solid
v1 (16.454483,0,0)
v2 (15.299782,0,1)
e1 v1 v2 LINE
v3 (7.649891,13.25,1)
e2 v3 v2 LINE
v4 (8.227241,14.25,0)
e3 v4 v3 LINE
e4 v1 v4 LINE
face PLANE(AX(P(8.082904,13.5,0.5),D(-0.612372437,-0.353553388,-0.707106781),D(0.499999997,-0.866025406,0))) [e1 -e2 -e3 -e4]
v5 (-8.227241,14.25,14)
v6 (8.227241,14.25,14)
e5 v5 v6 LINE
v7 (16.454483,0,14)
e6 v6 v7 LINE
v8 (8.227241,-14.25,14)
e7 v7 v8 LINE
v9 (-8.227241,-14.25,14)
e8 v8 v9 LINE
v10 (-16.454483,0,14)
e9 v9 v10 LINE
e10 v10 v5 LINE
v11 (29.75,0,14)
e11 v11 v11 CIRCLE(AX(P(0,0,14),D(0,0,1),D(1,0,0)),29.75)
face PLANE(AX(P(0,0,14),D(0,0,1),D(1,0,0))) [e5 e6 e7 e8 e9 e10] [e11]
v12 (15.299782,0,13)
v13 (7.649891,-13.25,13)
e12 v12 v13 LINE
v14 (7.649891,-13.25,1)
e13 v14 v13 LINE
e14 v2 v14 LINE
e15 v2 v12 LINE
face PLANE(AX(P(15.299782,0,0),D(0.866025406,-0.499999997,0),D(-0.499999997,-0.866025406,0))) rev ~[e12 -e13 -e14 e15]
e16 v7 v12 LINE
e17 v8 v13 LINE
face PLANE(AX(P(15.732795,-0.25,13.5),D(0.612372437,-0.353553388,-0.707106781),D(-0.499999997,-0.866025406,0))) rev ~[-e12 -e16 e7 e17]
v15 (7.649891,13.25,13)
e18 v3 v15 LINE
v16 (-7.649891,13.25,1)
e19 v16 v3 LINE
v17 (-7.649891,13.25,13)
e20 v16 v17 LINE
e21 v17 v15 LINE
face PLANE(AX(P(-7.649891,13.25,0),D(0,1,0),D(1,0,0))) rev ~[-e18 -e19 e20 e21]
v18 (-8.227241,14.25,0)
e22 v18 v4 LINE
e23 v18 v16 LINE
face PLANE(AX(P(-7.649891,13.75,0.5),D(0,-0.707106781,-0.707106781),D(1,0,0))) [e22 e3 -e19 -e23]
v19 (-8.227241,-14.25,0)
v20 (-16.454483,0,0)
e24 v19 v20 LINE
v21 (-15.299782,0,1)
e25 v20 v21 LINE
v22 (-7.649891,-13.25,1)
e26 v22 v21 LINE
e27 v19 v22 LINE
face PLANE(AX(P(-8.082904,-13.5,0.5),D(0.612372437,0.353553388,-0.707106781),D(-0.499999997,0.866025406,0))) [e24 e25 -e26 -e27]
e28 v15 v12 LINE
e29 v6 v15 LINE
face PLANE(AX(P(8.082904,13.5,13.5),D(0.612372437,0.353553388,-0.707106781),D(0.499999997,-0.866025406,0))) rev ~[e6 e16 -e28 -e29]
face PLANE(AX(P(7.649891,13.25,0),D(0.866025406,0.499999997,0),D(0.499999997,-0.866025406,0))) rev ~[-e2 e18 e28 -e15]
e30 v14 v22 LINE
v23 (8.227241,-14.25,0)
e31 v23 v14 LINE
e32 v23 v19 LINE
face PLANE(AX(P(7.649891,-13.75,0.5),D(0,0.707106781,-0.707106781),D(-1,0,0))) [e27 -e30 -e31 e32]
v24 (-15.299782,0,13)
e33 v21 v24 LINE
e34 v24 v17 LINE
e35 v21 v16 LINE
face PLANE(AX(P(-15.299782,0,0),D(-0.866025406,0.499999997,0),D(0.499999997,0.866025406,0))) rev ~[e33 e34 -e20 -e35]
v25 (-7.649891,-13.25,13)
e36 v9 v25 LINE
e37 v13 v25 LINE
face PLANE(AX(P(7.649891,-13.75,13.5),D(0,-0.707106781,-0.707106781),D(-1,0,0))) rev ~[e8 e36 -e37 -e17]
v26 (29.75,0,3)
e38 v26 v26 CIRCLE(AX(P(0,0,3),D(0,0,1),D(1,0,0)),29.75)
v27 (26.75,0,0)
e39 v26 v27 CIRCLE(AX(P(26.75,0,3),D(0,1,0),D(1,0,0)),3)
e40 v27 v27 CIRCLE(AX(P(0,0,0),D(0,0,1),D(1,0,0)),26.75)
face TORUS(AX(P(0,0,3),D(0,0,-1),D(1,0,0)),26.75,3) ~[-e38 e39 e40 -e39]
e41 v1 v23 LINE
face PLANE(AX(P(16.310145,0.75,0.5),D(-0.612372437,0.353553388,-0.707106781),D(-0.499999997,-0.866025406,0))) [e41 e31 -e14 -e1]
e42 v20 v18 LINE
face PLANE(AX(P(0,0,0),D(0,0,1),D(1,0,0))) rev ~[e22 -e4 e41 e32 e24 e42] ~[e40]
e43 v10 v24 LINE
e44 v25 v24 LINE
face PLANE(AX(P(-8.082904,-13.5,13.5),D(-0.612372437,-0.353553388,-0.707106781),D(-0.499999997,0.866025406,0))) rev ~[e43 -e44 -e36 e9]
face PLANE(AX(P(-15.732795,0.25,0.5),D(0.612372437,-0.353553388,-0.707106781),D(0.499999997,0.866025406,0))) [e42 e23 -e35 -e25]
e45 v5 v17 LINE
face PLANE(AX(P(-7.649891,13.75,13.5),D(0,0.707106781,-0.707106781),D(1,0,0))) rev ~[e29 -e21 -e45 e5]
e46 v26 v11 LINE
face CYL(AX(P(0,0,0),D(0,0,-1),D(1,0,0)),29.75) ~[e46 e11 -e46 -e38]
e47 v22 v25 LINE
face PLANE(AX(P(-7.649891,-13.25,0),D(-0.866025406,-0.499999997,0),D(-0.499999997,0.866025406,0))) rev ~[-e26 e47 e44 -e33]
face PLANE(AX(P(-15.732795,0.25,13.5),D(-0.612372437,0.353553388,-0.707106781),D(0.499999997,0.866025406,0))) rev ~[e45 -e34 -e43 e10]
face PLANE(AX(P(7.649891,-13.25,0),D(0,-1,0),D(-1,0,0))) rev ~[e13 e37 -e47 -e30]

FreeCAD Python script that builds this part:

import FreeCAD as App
import Part
import Sketcher

V = App.Vector
Q = App.Units.Quantity


def edges_at(feature, points):
    """Names of the edges that pass closest to the given points."""
    edges = feature.Shape.Edges
    near = lambda p: min(range(len(edges)), key=lambda i: edges[i].distToShape(Part.Vertex(*p))[0])
    return sorted({f"Edge{near(p) + 1}" for p in points})


def add_polygon(sketch, points):
    """Adds a closed chain of lines whose ends are joined by coincident constraints."""
    first, n = sketch.GeometryCount, len(points)
    for a, b in zip(points, points[1:] + points[:1]):
        sketch.addGeometry(Part.LineSegment(App.Vector(*a, 0), App.Vector(*b, 0)), False)
    for i in range(n):
        sketch.addConstraint(Sketcher.Constraint("Coincident", first + i, 2, first + (i + 1) % n, 1))

doc = App.newDocument("Part")
body = doc.addObject("PartDesign::Body", "Body")

# Sketch on XY plane
sketch1 = doc.addObject("Sketcher::SketchObject", "Sketch")
body.addObject(sketch1)
sketch1.AttachmentSupport = (doc.XY_Plane, [""])
sketch1.MapMode = "FlatFace"
sketch1.addGeometry(Part.Circle(V(0, 0, 0), V(0, 0, 1), 30), False)  # 0
add_polygon(sketch1, [(8, 13), (15, 0), (8, -13), (-8, -13), (-15, 0), (-8, 13)])  # lines 1-6
sketch1.addConstraint([
    Sketcher.Constraint("Horizontal", 3),
    Sketcher.Constraint("Horizontal", 6),
    Sketcher.Constraint("Coincident", 0, 3, -1, 1),
    Sketcher.Constraint("Symmetric", 1, 2, 4, 2, -1, 1),
    Sketcher.Constraint("Symmetric", 2, 2, 5, 2, -1, 1),
    Sketcher.Constraint("PointOnObject", 1, 2, -1),
    Sketcher.Constraint("Parallel", 1, 4),
    Sketcher.Constraint("Vertical", 3, 2, 5, 2),
    Sketcher.Constraint("Diameter", 0, 59.5),
    Sketcher.Constraint("Angle", 1, Q("-60 deg")),
    Sketcher.Constraint("DistanceY", 3, 2, 5, 2, 26.5),
    Sketcher.Constraint("DistanceX", 3, 2, 3, 1, 15.299782),
])
pad1 = doc.addObject("PartDesign::Pad", "Pad")
body.addObject(pad1)
pad1.Profile = sketch1
pad1.Length = 14
doc.recompute()

fillet = doc.addObject("PartDesign::Fillet", "Fillet")
body.addObject(fillet)
fillet.Base = (pad1, edges_at(pad1, [(-29.75, 0, 0)]))
fillet.Radius = 3
doc.recompute()

chamfer = doc.addObject("PartDesign::Chamfer", "Chamfer")
body.addObject(chamfer)
chamfer.Base = (fillet, edges_at(fillet, [
    (-11.475, -6.625, 14),
    (-11.475, 6.625, 14),
    (0, 13.25, 14),
    (11.475, -6.625, 14),
    (11.475, 6.625, 0),
    (0, -13.25, 14),
    (11.475, 6.625, 14),
]))
chamfer.Size = 1
doc.recompute()

chamfer2 = doc.addObject("PartDesign::Chamfer", "Chamfer001")
body.addObject(chamfer2)
chamfer2.Base = (chamfer, edges_at(chamfer, [
    (11.764, -6.125, 0),
    (0, -13.25, 0),
    (-11.475, -6.625, 0),
    (-11.475, 6.625, 0),
    (0.577, 13.25, 0),
]))
chamfer2.Size = 1

doc.recompute()
